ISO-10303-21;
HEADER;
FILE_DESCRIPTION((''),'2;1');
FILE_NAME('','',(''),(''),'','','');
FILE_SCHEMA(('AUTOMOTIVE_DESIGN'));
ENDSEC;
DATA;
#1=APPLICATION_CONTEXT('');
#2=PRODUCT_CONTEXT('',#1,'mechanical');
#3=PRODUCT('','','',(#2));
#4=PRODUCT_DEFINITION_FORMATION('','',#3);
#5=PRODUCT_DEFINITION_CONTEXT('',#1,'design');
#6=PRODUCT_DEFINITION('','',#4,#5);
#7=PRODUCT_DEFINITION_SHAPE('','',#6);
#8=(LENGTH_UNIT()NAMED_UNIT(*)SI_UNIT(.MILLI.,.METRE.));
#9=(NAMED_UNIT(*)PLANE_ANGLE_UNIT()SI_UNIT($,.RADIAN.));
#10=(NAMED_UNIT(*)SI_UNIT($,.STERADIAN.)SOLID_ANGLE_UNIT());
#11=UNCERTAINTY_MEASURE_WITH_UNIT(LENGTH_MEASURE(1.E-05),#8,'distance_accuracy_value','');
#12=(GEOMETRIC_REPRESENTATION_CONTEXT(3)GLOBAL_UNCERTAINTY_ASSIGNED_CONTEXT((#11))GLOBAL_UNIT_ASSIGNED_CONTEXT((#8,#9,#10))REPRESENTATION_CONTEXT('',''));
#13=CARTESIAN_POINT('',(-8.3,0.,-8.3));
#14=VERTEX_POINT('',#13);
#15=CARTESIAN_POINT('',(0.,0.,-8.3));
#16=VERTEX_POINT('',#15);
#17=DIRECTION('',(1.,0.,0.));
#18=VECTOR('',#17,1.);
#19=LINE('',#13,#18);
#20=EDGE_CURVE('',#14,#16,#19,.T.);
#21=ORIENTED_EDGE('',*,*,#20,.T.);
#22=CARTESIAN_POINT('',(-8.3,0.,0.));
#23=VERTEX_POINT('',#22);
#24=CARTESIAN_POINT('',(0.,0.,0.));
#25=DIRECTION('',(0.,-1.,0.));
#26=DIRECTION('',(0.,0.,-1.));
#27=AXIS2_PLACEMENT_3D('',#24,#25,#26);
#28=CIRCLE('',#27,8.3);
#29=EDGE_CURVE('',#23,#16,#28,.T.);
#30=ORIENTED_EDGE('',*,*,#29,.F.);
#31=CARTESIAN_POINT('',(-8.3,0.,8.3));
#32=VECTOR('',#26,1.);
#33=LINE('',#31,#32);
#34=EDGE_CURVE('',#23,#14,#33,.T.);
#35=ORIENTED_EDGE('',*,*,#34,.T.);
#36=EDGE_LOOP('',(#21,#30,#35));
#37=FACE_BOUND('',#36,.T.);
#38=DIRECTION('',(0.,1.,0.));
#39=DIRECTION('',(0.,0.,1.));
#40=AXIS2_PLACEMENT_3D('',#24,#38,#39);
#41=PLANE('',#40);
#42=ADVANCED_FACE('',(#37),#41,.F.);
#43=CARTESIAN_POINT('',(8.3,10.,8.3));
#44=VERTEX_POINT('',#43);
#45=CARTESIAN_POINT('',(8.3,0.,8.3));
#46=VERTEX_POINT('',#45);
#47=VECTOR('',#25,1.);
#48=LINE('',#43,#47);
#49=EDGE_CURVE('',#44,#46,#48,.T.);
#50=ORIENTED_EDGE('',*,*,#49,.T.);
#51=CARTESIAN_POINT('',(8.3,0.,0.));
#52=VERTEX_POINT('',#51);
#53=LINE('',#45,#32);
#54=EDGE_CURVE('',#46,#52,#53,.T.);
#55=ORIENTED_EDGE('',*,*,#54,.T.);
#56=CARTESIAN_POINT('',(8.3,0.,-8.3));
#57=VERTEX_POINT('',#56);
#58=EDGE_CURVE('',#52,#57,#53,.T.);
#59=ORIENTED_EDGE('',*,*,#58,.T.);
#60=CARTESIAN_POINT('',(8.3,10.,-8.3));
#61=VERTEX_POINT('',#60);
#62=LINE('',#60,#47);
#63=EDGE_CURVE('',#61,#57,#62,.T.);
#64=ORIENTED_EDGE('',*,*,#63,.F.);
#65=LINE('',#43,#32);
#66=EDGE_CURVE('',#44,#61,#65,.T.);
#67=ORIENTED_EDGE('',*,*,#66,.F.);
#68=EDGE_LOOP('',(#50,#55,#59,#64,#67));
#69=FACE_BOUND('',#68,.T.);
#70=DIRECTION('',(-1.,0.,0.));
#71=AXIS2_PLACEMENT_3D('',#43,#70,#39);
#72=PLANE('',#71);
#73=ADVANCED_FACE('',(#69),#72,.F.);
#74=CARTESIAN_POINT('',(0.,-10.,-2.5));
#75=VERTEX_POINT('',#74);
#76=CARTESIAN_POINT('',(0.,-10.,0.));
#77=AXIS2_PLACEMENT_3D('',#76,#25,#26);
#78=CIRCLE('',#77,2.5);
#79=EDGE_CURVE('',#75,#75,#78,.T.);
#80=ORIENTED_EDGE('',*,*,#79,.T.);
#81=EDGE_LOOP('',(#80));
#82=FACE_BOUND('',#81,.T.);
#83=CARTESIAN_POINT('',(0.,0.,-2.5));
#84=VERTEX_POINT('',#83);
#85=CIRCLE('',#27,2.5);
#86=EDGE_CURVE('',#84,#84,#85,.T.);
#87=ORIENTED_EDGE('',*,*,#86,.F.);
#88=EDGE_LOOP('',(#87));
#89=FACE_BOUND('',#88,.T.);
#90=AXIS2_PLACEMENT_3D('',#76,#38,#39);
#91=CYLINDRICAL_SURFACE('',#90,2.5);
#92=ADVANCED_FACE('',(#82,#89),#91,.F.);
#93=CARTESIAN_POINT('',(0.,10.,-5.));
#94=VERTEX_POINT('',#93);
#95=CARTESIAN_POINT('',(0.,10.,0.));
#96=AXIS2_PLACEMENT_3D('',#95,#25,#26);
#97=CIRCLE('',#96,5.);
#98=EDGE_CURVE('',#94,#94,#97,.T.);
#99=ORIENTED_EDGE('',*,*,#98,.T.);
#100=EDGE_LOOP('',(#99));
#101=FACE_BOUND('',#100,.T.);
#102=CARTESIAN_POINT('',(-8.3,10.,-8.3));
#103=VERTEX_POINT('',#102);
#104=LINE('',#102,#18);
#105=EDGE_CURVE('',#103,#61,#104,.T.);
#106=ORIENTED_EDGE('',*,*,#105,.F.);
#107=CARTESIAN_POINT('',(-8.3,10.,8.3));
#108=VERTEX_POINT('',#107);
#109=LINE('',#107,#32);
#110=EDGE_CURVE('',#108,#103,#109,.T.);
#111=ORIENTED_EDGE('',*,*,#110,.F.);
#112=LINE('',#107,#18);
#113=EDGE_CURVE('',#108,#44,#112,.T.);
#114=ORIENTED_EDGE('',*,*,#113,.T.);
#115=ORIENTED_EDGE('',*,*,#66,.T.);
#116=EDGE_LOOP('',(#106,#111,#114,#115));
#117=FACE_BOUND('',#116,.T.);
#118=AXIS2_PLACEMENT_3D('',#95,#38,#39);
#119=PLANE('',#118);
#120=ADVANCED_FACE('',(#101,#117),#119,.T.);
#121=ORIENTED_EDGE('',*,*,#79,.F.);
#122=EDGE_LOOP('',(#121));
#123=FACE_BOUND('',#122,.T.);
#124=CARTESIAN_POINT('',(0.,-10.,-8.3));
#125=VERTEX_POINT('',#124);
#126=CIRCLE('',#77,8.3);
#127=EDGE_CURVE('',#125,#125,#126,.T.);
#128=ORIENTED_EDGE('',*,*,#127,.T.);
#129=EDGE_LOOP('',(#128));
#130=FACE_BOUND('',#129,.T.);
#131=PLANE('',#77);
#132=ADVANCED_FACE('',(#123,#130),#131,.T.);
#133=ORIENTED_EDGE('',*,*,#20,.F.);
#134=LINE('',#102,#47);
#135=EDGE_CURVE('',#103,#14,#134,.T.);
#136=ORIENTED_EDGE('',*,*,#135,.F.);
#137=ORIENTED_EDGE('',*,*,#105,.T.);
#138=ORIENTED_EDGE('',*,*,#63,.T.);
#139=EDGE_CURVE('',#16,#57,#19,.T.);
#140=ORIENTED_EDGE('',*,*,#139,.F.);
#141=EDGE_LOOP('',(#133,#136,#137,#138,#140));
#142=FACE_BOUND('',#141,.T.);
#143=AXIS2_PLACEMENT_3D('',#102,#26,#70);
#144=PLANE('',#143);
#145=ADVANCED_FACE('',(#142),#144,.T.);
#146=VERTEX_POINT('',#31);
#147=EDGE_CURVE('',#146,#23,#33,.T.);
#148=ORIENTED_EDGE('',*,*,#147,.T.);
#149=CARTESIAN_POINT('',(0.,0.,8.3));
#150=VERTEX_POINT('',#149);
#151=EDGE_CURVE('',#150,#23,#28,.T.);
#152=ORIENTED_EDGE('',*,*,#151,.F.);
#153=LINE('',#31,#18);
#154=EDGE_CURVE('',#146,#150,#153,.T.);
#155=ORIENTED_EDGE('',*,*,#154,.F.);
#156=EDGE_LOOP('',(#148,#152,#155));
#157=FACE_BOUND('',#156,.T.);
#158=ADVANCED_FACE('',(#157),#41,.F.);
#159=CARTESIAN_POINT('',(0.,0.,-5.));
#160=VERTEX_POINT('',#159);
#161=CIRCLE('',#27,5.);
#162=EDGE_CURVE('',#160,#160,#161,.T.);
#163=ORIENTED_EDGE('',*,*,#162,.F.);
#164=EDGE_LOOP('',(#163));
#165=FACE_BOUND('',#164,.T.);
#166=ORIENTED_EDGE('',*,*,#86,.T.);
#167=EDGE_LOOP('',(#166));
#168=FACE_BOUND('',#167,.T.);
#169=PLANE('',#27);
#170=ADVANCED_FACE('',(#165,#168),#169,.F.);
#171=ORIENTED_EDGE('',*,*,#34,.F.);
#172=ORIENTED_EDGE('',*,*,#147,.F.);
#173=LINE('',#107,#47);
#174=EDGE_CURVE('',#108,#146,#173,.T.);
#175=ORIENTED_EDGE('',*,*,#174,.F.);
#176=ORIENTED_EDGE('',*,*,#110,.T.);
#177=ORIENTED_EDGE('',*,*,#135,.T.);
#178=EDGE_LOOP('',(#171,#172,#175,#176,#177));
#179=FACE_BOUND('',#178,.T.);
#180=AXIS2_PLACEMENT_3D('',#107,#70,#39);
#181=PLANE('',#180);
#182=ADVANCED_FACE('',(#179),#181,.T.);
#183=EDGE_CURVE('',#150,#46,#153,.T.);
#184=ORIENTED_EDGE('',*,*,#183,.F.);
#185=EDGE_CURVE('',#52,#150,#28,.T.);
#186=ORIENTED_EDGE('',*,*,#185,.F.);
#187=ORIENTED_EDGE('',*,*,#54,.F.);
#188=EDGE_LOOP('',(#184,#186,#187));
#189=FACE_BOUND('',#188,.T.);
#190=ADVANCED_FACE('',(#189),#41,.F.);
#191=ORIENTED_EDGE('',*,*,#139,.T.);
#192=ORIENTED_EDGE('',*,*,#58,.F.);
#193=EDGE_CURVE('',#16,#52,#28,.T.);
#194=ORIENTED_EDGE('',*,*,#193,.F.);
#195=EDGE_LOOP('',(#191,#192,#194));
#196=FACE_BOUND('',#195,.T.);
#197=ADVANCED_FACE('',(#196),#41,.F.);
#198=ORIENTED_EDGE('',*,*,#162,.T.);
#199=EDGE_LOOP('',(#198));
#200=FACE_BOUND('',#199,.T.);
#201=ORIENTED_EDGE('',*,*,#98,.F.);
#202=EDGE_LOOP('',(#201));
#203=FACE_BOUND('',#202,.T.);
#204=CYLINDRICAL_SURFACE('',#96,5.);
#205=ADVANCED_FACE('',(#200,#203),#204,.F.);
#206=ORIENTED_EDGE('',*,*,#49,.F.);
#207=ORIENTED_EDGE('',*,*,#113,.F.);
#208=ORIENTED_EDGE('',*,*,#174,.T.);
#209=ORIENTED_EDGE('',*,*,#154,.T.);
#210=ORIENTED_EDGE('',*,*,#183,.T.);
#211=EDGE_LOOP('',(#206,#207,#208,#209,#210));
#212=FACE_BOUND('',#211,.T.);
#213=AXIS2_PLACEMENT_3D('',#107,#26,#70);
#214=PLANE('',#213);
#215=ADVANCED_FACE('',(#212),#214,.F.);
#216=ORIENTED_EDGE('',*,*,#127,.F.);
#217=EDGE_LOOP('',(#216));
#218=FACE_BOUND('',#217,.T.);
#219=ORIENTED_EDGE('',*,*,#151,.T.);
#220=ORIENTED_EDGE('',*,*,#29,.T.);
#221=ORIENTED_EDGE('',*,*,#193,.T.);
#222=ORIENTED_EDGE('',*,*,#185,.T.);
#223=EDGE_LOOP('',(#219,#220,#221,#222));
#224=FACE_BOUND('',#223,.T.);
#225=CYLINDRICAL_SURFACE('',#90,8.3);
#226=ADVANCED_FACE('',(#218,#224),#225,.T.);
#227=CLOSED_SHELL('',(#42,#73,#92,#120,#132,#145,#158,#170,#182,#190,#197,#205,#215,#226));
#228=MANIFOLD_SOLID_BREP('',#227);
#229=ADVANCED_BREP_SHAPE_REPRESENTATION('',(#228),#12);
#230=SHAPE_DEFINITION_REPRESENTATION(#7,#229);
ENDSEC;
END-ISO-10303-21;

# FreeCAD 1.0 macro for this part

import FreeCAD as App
import Part
import Sketcher
from FreeCAD import Vector
Q = App.Units.Quantity

doc = App.newDocument("Part")
body = doc.addObject("PartDesign::Body", "Body")

# Sketch on XZ plane
sketch1 = doc.addObject("Sketcher::SketchObject", "Sketch")
body.addObject(sketch1)
sketch1.AttachmentSupport = (doc.XZ_Plane, [""])
sketch1.MapMode = "FlatFace"
sketch1.addGeometry(Part.LineSegment(Vector(-8, -8, 0), Vector(-8, 8, 0)), False)
sketch1.addGeometry(Part.LineSegment(Vector(-8, 8, 0), Vector(8, 8, 0)), False)
sketch1.addGeometry(Part.LineSegment(Vector(8, 8, 0), Vector(8, -8, 0)), False)
sketch1.addGeometry(Part.LineSegment(Vector(8, -8, 0), Vector(-8, -8, 0)), False)
sketch1.addConstraint(Sketcher.Constraint("Coincident", 0, 2, 1, 1))
sketch1.addConstraint(Sketcher.Constraint("Coincident", 1, 2, 2, 1))
sketch1.addConstraint(Sketcher.Constraint("Coincident", 2, 2, 3, 1))
sketch1.addConstraint(Sketcher.Constraint("Coincident", 3, 2, 0, 1))
sketch1.addConstraint(Sketcher.Constraint("Vertical", 0))
sketch1.addConstraint(Sketcher.Constraint("Horizontal", 1))
sketch1.addConstraint(Sketcher.Constraint("Vertical", 2))
sketch1.addConstraint(Sketcher.Constraint("Horizontal", 3))
sketch1.addConstraint(Sketcher.Constraint("Symmetric", 0, 2, 2, 2, -1, 1))
sketch1.addConstraint(Sketcher.Constraint("Equal", 3, 0))
sketch1.addConstraint(Sketcher.Constraint("DistanceX", 1, 1, 1, 2, Q("16.6 mm")))
pad1 = doc.addObject("PartDesign::Pad", "Pad")
body.addObject(pad1)
pad1.Profile = sketch1
pad1.Length = 10
pad1.Reversed = True

# Sketch on XZ plane
sketch2 = doc.addObject("Sketcher::SketchObject", "Sketch001")
body.addObject(sketch2)
sketch2.AttachmentSupport = (doc.XZ_Plane, [""])
sketch2.MapMode = "FlatFace"
sketch2.addGeometry(Part.Circle(Vector(0, 0, 0), Vector(0, 0, 1), 5), False)
sketch2.addConstraint(Sketcher.Constraint("Coincident", 0, 3, -1, 1))
sketch2.addConstraint(Sketcher.Constraint("Diameter", 0, Q("10 mm")))
pocket1 = doc.addObject("PartDesign::Pocket", "Pocket")
body.addObject(pocket1)
pocket1.Profile = sketch2
pocket1.Length = 10

# Sketch on XZ plane
sketch3 = doc.addObject("Sketcher::SketchObject", "Sketch002")
body.addObject(sketch3)
sketch3.AttachmentSupport = (doc.XZ_Plane, [""])
sketch3.MapMode = "FlatFace"
sketch3.addGeometry(Part.Circle(Vector(0, 0, 0), Vector(0, 0, 1), 8.3), False)
sketch3.addGeometry(Part.Circle(Vector(0, 0, 0), Vector(0, 0, 1), 2.5), False)
sketch3.addConstraint(Sketcher.Constraint("Coincident", 0, 3, -1, 1))
sketch3.addConstraint(Sketcher.Constraint("Coincident", 1, 3, -1, 1))
sketch3.addConstraint(Sketcher.Constraint("Diameter", 1, Q("5 mm")))
sketch3.addConstraint(Sketcher.Constraint("Diameter", 0, Q("16.6 mm")))
pad2 = doc.addObject("PartDesign::Pad", "Pad001")
body.addObject(pad2)
pad2.Profile = sketch3
pad2.Length = 10

doc.recompute()
